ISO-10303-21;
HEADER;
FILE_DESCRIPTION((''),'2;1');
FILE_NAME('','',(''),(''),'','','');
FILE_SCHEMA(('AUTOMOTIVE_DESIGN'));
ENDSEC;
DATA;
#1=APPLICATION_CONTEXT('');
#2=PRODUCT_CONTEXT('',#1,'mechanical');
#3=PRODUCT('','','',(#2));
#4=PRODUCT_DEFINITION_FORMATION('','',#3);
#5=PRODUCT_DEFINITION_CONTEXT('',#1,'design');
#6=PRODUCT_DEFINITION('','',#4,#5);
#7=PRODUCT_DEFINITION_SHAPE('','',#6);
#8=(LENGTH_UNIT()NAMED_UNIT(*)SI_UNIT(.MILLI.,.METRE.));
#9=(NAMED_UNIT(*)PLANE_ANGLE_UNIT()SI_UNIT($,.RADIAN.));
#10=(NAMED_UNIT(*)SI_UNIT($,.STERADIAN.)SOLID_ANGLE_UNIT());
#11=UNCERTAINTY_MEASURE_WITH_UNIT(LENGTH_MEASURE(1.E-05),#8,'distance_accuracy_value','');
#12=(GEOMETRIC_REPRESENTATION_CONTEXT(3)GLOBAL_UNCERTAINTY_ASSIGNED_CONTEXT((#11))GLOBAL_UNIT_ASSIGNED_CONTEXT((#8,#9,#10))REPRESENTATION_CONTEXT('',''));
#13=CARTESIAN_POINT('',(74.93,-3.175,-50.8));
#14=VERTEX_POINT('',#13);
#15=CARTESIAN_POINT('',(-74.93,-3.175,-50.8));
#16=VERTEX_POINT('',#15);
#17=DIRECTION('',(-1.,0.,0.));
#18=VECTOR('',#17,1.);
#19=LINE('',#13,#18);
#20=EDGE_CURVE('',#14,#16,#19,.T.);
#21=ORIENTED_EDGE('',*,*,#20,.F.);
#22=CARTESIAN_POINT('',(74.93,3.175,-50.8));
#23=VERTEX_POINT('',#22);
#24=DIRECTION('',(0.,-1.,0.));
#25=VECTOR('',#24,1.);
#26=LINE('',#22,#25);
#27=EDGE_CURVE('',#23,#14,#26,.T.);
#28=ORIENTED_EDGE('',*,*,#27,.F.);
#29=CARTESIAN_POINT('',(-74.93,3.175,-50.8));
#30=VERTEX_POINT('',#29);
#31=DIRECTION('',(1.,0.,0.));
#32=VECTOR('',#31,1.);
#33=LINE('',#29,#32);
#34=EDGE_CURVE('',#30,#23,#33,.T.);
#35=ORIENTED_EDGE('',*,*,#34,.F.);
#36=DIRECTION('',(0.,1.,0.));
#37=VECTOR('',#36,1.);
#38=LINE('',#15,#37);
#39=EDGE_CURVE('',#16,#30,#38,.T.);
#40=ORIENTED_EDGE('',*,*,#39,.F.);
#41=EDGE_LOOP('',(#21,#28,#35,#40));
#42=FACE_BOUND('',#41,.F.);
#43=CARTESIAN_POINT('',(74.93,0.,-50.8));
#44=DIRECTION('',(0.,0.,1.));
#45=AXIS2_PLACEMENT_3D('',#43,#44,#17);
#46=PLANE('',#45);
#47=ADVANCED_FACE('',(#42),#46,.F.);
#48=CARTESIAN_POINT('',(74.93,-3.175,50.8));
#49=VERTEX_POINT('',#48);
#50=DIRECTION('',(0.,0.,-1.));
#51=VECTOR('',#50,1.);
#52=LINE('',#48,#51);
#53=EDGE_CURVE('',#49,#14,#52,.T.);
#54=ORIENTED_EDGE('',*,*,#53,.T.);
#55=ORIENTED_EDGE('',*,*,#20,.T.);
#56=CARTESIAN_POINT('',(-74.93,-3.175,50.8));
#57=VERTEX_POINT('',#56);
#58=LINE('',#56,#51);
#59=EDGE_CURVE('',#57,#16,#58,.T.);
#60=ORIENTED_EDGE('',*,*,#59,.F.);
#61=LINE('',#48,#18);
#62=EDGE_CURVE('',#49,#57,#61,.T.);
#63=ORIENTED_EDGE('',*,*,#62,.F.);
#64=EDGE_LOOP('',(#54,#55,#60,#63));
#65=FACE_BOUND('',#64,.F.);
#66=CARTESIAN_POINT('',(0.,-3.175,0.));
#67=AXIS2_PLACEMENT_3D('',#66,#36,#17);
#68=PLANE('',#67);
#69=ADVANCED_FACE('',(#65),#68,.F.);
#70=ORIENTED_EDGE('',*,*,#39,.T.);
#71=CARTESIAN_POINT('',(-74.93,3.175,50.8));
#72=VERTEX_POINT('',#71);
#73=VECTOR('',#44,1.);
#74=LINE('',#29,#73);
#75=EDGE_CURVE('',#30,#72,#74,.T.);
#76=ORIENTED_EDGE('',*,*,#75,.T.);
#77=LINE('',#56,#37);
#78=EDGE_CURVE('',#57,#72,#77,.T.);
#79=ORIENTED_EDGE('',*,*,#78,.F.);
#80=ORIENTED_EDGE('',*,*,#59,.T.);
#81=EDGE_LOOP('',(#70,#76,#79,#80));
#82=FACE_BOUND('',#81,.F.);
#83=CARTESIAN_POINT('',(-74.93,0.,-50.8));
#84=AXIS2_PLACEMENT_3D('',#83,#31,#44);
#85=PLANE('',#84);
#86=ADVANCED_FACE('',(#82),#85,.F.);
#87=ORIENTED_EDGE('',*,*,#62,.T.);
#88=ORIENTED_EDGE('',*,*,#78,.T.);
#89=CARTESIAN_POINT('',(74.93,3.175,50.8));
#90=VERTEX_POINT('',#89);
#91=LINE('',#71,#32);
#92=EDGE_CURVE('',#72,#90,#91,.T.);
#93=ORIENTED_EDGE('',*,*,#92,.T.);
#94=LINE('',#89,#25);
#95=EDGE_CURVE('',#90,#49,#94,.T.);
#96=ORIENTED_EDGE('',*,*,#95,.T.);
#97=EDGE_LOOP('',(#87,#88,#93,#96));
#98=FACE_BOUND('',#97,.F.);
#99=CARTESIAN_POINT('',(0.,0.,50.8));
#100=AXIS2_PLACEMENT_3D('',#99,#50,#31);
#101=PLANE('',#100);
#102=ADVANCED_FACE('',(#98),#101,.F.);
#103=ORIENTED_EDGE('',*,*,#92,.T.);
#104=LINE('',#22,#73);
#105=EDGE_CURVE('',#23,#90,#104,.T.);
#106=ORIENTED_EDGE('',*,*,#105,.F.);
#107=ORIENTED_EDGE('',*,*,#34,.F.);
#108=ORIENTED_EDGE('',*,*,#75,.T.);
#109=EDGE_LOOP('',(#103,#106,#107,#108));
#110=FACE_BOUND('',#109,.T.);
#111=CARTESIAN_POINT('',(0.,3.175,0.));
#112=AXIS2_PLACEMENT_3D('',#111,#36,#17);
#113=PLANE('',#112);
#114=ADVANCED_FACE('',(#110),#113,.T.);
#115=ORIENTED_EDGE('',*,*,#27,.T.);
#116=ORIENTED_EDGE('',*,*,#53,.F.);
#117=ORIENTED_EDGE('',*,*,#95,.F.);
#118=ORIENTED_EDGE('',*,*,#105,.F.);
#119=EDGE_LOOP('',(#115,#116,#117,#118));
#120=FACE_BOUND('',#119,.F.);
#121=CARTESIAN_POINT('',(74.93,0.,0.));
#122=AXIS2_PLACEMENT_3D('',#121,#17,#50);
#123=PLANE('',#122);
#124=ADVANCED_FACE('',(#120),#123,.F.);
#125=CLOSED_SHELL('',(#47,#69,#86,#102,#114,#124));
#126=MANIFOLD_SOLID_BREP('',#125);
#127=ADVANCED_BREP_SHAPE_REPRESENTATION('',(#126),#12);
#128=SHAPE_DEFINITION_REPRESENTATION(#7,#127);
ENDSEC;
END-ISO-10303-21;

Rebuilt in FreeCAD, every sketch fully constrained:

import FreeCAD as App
import Part
import Sketcher
from FreeCAD import Vector
Q = App.Units.Quantity


def add_polygon(sketch, points):
    """Adds a closed chain of lines whose ends are joined by coincident constraints."""
    first, n = sketch.GeometryCount, len(points)
    for a, b in zip(points, points[1:] + points[:1]):
        sketch.addGeometry(Part.LineSegment(App.Vector(*a, 0), App.Vector(*b, 0)), False)
    for i in range(n):
        sketch.addConstraint(Sketcher.Constraint("Coincident", first + i, 2, first + (i + 1) % n, 1))

doc = App.newDocument("Part")
body = doc.addObject("PartDesign::Body", "Body")

sketch1 = body.newObject("Sketcher::SketchObject", "Sketch")
sketch1.AttachmentSupport = (doc.getObject("XZ_Plane"), [""])
sketch1.MapMode = "FlatFace"
add_polygon(sketch1, [(75, -51), (-75, -51), (-75, 51), (75, 51)])
sketch1.addConstraint(Sketcher.Constraint("Horizontal", 0))
sketch1.addConstraint(Sketcher.Constraint("Vertical", 1))
sketch1.addConstraint(Sketcher.Constraint("Horizontal", 2))
sketch1.addConstraint(Sketcher.Constraint("Vertical", 3))
sketch1.addConstraint(Sketcher.Constraint("Symmetric", 0, 2, 2, 2, -1, 1))
sketch1.addConstraint(Sketcher.Constraint("DistanceY", 1, 1, 1, 2, Q("4 in")))
sketch1.addConstraint(Sketcher.Constraint("DistanceX", 0, 2, 0, 1, Q("5.9 in")))
pad1 = body.newObject("PartDesign::Pad", "Pad")
pad1.Profile = sketch1
pad1.Length = Q("0.25 in")
pad1.Midplane = True

doc.recompute()
